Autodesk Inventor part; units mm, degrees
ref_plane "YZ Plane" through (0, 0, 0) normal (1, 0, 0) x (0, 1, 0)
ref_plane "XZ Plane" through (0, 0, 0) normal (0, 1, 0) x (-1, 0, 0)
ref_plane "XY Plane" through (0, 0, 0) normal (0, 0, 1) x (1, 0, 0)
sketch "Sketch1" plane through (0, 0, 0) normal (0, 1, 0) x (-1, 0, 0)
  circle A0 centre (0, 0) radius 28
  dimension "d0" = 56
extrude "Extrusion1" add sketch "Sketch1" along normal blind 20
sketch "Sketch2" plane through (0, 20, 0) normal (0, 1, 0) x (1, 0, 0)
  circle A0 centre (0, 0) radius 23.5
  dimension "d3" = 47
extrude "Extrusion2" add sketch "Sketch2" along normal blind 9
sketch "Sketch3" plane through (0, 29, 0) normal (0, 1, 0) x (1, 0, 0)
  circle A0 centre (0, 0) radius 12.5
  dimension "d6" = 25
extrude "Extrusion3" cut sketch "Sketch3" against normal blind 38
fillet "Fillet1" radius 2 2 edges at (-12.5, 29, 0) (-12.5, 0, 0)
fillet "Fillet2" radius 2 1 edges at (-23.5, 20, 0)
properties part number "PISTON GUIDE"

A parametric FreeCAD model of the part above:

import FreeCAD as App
import Part
import Sketcher

V = App.Vector


def edges_at(feature, points):
    """Names of the edges that pass closest to the given points."""
    edges = feature.Shape.Edges
    near = lambda p: min(range(len(edges)), key=lambda i: edges[i].distToShape(Part.Vertex(*p))[0])
    return sorted({f"Edge{near(p) + 1}" for p in points})

doc = App.newDocument("Part")
body = doc.addObject("PartDesign::Body", "Body")

# Sketch on XZ plane
sketch1 = body.newObject("Sketcher::SketchObject", "Sketch")
sketch1.AttachmentSupport = (doc.getObject("XZ_Plane"), [""])
sketch1.MapMode = "FlatFace"
sketch1.addGeometry(Part.Circle(V(0, 0, 0), V(0, 0, 1), 28), False)
sketch1.addConstraint([
    Sketcher.Constraint("Coincident", 0, 3, -1, 1),
    Sketcher.Constraint("Diameter", 0, 56.0),
])
pad1 = body.newObject("PartDesign::Pad", "Pad")
pad1.Profile = sketch1
pad1.Length = 20
pad1.Reversed = True

# Sketch on XZ plane
sketch2 = body.newObject("Sketcher::SketchObject", "Sketch001")
sketch2.AttachmentSupport = (doc.getObject("XZ_Plane"), [""])
sketch2.MapMode = "FlatFace"
sketch2.AttachmentOffset = App.Placement(V(0, 0, -20), App.Rotation())
sketch2.addGeometry(Part.Circle(V(0, 0, 0), V(0, 0, 1), 23.5), False)
sketch2.addConstraint([
    Sketcher.Constraint("Coincident", 0, 3, -1, 1),
    Sketcher.Constraint("Diameter", 0, 47.0),
])
pad2 = body.newObject("PartDesign::Pad", "Pad001")
pad2.Profile = sketch2
pad2.Length = 9
pad2.Reversed = True

# Sketch on XZ plane
sketch3 = body.newObject("Sketcher::SketchObject", "Sketch002")
sketch3.AttachmentSupport = (doc.getObject("XZ_Plane"), [""])
sketch3.MapMode = "FlatFace"
sketch3.AttachmentOffset = App.Placement(V(0, 0, -29), App.Rotation())
sketch3.addGeometry(Part.Circle(V(0, 0, 0), V(0, 0, 1), 12.5), False)
sketch3.addConstraint([
    Sketcher.Constraint("Coincident", 0, 3, -1, 1),
    Sketcher.Constraint("Diameter", 0, 25.0),
])
pocket1 = body.newObject("PartDesign::Pocket", "Pocket")
pocket1.Profile = sketch3
pocket1.Length = 38
pocket1.Reversed = True
doc.recompute()

fillet = body.newObject("PartDesign::Fillet", "Fillet")
fillet.Base = (pocket1, edges_at(pocket1, [(-12.5, 29, 0), (-12.5, 0, 0)]))
fillet.Radius = 2
doc.recompute()

fillet2 = body.newObject("PartDesign::Fillet", "Fillet001")
fillet2.Base = (fillet, edges_at(fillet, [(-23.5, 20, 0)]))
fillet2.Radius = 2

doc.recompute()
